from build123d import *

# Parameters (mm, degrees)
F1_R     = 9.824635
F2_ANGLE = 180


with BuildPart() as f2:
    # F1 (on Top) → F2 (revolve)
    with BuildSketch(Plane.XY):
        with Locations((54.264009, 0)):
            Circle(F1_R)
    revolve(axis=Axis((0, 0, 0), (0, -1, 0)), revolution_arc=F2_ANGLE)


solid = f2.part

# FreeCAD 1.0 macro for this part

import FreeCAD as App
import Part
import Sketcher

V = App.Vector

doc = App.newDocument("Part")
body = doc.addObject("PartDesign::Body", "Body")

# Sketch on XY plane
sketch1 = doc.addObject("Sketcher::SketchObject", "Sketch")
body.addObject(sketch1)
sketch1.AttachmentSupport = (doc.XY_Plane, [""])
sketch1.MapMode = "FlatFace"
sketch1.addGeometry(Part.Circle(V(54, 0, 0), V(0, 0, 1), 10), False)
sketch1.addConstraint(Sketcher.Constraint("PointOnObject", 0, 3, -1))
sketch1.addConstraint(Sketcher.Constraint("Diameter", 0, 19.64927))
sketch1.addConstraint(Sketcher.Constraint("DistanceX", -1, 1, 0, 3, 54.264009))
revolution = doc.addObject("PartDesign::Revolution", "Revolution")
body.addObject(revolution)
revolution.Profile = sketch1
revolution.ReferenceAxis = (sketch1, ["V_Axis"])
revolution.Angle = 180
revolution.Reversed = True

doc.recompute()
